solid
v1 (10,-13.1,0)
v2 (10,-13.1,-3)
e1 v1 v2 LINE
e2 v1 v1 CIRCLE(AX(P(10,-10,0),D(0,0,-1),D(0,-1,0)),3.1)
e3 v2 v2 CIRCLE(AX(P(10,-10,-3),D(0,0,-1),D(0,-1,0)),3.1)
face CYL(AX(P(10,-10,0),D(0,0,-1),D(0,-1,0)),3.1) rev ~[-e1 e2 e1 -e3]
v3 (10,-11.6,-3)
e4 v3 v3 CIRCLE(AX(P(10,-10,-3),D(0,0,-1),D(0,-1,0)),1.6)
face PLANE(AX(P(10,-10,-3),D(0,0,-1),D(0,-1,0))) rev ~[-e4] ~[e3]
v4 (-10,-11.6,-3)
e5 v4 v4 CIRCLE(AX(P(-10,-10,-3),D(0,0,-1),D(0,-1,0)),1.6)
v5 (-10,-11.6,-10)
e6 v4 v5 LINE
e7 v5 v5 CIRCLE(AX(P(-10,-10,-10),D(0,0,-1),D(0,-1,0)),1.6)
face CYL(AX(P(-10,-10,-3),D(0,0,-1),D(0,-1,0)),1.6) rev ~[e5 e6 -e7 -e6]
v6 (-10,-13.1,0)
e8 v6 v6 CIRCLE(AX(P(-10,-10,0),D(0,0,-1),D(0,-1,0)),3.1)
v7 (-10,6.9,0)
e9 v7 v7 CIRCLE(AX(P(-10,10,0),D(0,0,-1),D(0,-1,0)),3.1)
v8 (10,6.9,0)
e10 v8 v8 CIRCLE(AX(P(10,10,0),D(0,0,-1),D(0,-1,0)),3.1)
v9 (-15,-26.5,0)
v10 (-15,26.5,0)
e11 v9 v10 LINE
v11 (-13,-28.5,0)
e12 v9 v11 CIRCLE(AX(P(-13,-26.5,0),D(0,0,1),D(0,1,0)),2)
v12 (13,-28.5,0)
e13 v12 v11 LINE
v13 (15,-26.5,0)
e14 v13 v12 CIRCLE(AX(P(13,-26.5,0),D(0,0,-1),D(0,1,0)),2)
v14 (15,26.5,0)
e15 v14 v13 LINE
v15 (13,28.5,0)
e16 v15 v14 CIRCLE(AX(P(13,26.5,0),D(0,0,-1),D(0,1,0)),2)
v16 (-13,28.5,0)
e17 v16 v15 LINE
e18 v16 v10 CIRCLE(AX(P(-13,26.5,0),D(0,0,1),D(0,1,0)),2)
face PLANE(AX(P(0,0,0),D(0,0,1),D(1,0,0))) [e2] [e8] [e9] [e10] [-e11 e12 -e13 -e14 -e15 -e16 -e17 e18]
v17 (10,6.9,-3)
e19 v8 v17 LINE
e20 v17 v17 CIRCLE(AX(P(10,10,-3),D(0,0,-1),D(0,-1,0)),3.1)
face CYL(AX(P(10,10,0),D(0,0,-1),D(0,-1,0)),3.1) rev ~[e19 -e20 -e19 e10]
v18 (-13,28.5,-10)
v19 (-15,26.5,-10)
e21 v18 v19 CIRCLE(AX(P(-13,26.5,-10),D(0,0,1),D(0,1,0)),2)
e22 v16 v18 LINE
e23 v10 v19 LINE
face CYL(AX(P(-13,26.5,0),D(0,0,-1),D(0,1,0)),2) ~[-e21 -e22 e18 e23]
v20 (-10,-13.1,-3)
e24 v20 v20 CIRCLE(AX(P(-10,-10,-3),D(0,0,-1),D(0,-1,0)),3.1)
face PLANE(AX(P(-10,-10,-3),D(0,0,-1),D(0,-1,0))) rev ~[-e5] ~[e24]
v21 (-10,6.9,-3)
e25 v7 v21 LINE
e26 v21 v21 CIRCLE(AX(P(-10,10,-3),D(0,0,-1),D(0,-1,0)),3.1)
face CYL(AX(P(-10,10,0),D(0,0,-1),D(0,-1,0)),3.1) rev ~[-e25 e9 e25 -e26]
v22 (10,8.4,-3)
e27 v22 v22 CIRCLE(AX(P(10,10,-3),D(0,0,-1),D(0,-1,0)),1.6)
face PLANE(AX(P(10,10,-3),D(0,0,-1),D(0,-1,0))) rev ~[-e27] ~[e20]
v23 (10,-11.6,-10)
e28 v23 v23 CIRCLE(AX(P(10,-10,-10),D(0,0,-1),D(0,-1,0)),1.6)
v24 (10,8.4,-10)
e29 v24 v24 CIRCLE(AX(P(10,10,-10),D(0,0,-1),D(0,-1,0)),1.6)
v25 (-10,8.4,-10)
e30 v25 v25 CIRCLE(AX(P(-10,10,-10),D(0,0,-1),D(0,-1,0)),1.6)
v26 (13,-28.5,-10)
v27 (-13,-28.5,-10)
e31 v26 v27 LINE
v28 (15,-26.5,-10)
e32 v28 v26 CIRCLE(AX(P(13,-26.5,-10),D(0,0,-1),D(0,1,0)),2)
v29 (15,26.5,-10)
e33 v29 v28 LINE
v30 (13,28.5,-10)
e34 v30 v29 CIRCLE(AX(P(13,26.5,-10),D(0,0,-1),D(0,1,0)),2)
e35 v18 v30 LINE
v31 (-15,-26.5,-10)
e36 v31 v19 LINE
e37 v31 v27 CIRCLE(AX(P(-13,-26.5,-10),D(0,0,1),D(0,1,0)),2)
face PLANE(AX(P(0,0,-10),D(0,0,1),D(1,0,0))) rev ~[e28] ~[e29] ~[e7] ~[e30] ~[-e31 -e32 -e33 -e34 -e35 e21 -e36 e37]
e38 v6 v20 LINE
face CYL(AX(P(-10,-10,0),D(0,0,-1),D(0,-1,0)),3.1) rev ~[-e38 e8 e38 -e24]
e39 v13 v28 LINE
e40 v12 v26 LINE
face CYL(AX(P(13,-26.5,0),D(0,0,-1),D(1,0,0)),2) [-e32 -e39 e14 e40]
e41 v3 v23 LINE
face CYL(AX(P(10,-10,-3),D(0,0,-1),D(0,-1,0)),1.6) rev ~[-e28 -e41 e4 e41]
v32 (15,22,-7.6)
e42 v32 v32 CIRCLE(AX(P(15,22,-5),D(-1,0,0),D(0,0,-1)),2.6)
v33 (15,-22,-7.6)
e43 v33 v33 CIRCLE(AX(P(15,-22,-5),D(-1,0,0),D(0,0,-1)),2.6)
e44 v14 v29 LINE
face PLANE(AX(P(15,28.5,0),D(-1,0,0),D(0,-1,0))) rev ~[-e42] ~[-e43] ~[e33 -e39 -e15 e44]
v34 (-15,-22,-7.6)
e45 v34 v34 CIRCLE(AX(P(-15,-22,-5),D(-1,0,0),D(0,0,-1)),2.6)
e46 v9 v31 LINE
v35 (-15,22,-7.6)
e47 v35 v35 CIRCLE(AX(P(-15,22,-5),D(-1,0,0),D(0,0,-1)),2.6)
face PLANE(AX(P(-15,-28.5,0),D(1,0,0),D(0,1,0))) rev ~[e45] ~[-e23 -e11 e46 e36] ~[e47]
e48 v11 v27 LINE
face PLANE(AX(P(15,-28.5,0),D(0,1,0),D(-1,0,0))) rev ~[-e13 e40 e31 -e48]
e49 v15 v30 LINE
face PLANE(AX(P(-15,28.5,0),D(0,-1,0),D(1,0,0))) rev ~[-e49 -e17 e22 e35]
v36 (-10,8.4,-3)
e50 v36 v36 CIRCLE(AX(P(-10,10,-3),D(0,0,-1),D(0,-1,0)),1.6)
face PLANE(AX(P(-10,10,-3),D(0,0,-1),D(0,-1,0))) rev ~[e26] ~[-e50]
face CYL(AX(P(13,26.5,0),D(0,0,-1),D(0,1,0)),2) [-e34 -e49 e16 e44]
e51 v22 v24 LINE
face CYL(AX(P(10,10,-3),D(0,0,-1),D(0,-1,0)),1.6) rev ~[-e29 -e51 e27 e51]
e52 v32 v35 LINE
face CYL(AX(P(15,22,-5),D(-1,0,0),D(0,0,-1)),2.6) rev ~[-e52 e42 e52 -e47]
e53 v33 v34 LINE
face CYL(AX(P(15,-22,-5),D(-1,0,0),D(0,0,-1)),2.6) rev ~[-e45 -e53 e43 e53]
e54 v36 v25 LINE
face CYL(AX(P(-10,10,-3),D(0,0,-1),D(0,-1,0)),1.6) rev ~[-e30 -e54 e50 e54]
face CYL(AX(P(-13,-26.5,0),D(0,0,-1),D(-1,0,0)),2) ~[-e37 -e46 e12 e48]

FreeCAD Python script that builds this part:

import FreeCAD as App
import Part
import Sketcher
Q = App.Units.Quantity


def edges_at(feature, points):
    """Names of the edges that pass closest to the given points."""
    edges = feature.Shape.Edges
    near = lambda p: min(range(len(edges)), key=lambda i: edges[i].distToShape(Part.Vertex(*p))[0])
    return sorted({f"Edge{near(p) + 1}" for p in points})


def add_polygon(sketch, points):
    """Adds a closed chain of lines whose ends are joined by coincident constraints."""
    first, n = sketch.GeometryCount, len(points)
    for a, b in zip(points, points[1:] + points[:1]):
        sketch.addGeometry(Part.LineSegment(App.Vector(*a, 0), App.Vector(*b, 0)), False)
    for i in range(n):
        sketch.addConstraint(Sketcher.Constraint("Coincident", first + i, 2, first + (i + 1) % n, 1))

doc = App.newDocument("Part")
body = doc.addObject("PartDesign::Body", "Body")

sketch1 = body.newObject("Sketcher::SketchObject", "Sketch")
sketch1.AttachmentSupport = (doc.getObject("XY_Plane"), [""])
sketch1.MapMode = "FlatFace"
add_polygon(sketch1, [(15, 28), (-15, 28), (-15, -28), (15, -28)])
sketch1.addConstraint([
    Sketcher.Constraint("Horizontal", 0),
    Sketcher.Constraint("Vertical", 1),
    Sketcher.Constraint("Horizontal", 2),
    Sketcher.Constraint("Vertical", 3),
    Sketcher.Constraint("Symmetric", 0, 2, 2, 2, -1, 1),
    Sketcher.Constraint("DistanceX", 0, 2, 0, 1, Q("30 mm")),
    Sketcher.Constraint("DistanceY", 1, 2, 1, 1, Q("57 mm")),
])
pad1 = body.newObject("PartDesign::Pad", "Pad")
pad1.Profile = sketch1
pad1.Length = 10
pad1.Reversed = True

sketch2 = body.newObject("Sketcher::SketchObject", "Sketch001")
sketch2.AttachmentSupport = (doc.getObject("XY_Plane"), [""])
sketch2.MapMode = "FlatFace"
sketch2.addGeometry([
    Part.Circle(App.Vector(-10, 10, 0), App.Vector(0, 0, 1), 1.6),
    Part.Circle(App.Vector(10, 10, 0), App.Vector(0, 0, 1), 1.6),
    Part.Circle(App.Vector(10, -10, 0), App.Vector(0, 0, 1), 1.6),
    Part.Circle(App.Vector(-10, -10, 0), App.Vector(0, 0, 1), 1.6),
], False)
sketch2.addConstraint([
    Sketcher.Constraint("Equal", 0, 1),
    Sketcher.Constraint("Equal", 1, 2),
    Sketcher.Constraint("Equal", 2, 3),
    Sketcher.Constraint("Symmetric", 0, 3, 2, 3, -1, 1),
    Sketcher.Constraint("Symmetric", 1, 3, 3, 3, -1, 1),
    Sketcher.Constraint("Symmetric", 0, 3, 1, 3, -2),
    Sketcher.Constraint("Diameter", 0, Q("3.2 mm")),
    Sketcher.Constraint("DistanceX", 0, 3, -1, 1, Q("10 mm")),
    Sketcher.Constraint("DistanceY", -1, 1, 0, 3, Q("10 mm")),
])
doc.recompute()
hole = body.newObject("PartDesign::Hole", "Hole")
hole.Profile = sketch2
hole.ThreadType = "None"
hole.Diameter = 3.2
hole.DepthType = "ThroughAll"
hole.HoleCutType = "Counterbore"
hole.HoleCutDiameter = 6.2
hole.HoleCutDepth = 3

sketch3 = body.newObject("Sketcher::SketchObject", "Sketch002")
sketch3.AttachmentSupport = (doc.getObject("YZ_Plane"), [""])
sketch3.MapMode = "FlatFace"
sketch3.AttachmentOffset = App.Placement(App.Vector(0, 0, 15), App.Rotation())
sketch3.addGeometry([
    Part.Circle(App.Vector(22, -5, 0), App.Vector(0, 0, 1), 2.6),
    Part.Circle(App.Vector(-22, -5, 0), App.Vector(0, 0, 1), 2.6),
], False)
sketch3.addConstraint([
    Sketcher.Constraint("Equal", 0, 1),
    Sketcher.Constraint("Symmetric", 0, 3, 1, 3, -2),
    Sketcher.Constraint("Diameter", 0, Q("5.2 mm")),
    Sketcher.Constraint("DistanceX", -1, 1, 0, 3, Q("22 mm")),
    Sketcher.Constraint("DistanceY", 0, 3, -1, 1, Q("5 mm")),
])
doc.recompute()
hole2 = body.newObject("PartDesign::Hole", "Hole001")
hole2.Profile = sketch3
hole2.ThreadType = "None"
hole2.Diameter = 5.2
hole2.DepthType = "ThroughAll"
doc.recompute()

fillet = body.newObject("PartDesign::Fillet", "Fillet")
fillet.Base = (hole2, edges_at(hole2, [
    (15, 28.5, -5),
    (-15, 28.5, -5),
    (-15, -28.5, -5),
    (15, -28.5, -5),
]))
fillet.Radius = 2

doc.recompute()
